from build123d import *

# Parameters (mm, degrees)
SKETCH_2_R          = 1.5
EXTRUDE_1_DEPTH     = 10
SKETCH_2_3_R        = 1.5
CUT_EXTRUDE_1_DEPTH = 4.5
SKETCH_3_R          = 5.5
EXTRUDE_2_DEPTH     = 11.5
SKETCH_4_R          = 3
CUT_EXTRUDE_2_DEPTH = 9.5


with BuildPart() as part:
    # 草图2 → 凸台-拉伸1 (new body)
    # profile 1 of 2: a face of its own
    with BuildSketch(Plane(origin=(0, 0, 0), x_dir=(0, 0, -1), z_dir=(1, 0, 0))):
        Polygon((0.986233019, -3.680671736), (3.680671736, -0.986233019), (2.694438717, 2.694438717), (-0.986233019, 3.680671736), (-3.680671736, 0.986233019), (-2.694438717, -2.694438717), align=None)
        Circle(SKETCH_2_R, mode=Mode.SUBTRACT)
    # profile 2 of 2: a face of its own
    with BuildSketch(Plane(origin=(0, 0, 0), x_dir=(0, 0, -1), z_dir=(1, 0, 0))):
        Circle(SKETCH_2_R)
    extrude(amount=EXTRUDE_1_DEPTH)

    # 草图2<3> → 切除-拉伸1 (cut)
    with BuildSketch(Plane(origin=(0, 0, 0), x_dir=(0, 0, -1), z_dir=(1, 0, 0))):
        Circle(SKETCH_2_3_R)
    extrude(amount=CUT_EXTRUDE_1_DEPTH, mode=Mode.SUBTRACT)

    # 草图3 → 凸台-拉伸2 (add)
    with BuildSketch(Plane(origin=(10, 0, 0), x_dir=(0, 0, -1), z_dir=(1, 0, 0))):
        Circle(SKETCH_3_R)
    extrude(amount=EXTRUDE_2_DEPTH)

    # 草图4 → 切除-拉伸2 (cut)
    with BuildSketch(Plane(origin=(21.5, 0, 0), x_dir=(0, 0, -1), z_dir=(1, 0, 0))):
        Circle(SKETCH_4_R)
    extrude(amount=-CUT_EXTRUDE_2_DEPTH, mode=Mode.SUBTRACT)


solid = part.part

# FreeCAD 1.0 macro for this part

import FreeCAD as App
import Part
import Sketcher
from FreeCAD import Vector
Q = App.Units.Quantity


def add_polygon(sketch, points):
    """Adds a closed chain of lines whose ends are joined by coincident constraints."""
    first, n = sketch.GeometryCount, len(points)
    for a, b in zip(points, points[1:] + points[:1]):
        sketch.addGeometry(Part.LineSegment(App.Vector(*a, 0), App.Vector(*b, 0)), False)
    for i in range(n):
        sketch.addConstraint(Sketcher.Constraint("Coincident", first + i, 2, first + (i + 1) % n, 1))

doc = App.newDocument("Part")
params = doc.addObject("Spreadsheet::Sheet", "Params")
for row, (alias, value) in enumerate([
    ("pad1_length", "10 mm"),
    ("sketch2_diameter", "3 mm"),
    ("pocket1_length", "4.5 mm"),
    ("sketch3_diameter", "11 mm"),
    ("pad2_length", "11.5 mm"),
    ("sketch4_diameter", "6 mm"),
    ("pocket2_length", "9.5 mm"),
], start=1):
    params.set(f"A{row}", alias)
    params.set(f"B{row}", "=" + value)
    params.setAlias(f"B{row}", alias)

body = doc.addObject("PartDesign::Body", "Body")

# Sketch on YZ plane
sketch1 = body.newObject("Sketcher::SketchObject", "Sketch")
sketch1.AttachmentSupport = (doc.getObject("YZ_Plane"), [""])
sketch1.MapMode = "FlatFace"
add_polygon(sketch1, [(-3.7, -1), (-1, -3.7), (2.7, -2.7), (3.7, 1), (1, 3.7), (-2.7, 2.7)])  # lines 0-5
sketch1.addConstraint([
    Sketcher.Constraint("Symmetric", 0, 2, 3, 2, -1, 1),
    Sketcher.Constraint("Symmetric", 1, 2, 4, 2, -1, 1),
    Sketcher.Constraint("Symmetric", 2, 2, 5, 2, -1, 1),
    Sketcher.Constraint("Equal", 0, 1),
    Sketcher.Constraint("Equal", 1, 2),
    Sketcher.Constraint("Angle", 0, Q("-45 deg")),
    Sketcher.Constraint("Angle", 1, Q("15 deg")),
    Sketcher.Constraint("Angle", 2, Q("75 deg")),
    Sketcher.Constraint("Distance", 0, Q("3.810512 mm")),
])
pad1 = body.newObject("PartDesign::Pad", "Pad")
pad1.Profile = sketch1
pad1.setExpression("Length", "Params.pad1_length")

# Sketch on YZ plane
sketch2 = body.newObject("Sketcher::SketchObject", "Sketch001")
sketch2.AttachmentSupport = (doc.getObject("YZ_Plane"), [""])
sketch2.MapMode = "FlatFace"
sketch2.addGeometry(Part.Circle(Vector(0, 0, 0), Vector(0, 0, 1), 1.5), False)
sketch2.addConstraint([
    Sketcher.Constraint("Coincident", 0, 3, -1, 1),
    Sketcher.Constraint("Diameter", 0, Q("3 mm")),
])
sketch2.setExpression("Constraints[1]", "Params.sketch2_diameter")
pocket1 = body.newObject("PartDesign::Pocket", "Pocket")
pocket1.Profile = sketch2
pocket1.setExpression("Length", "Params.pocket1_length")
pocket1.Reversed = True

# Sketch on YZ plane
sketch3 = body.newObject("Sketcher::SketchObject", "Sketch002")
sketch3.AttachmentSupport = (doc.getObject("YZ_Plane"), [""])
sketch3.MapMode = "FlatFace"
sketch3.AttachmentOffset = App.Placement(Vector(0, 0, 10), App.Rotation())
sketch3.addGeometry(Part.Circle(Vector(0, 0, 0), Vector(0, 0, 1), 6), False)
sketch3.addConstraint([
    Sketcher.Constraint("Coincident", 0, 3, -1, 1),
    Sketcher.Constraint("Diameter", 0, Q("11 mm")),
])
sketch3.setExpression("Constraints[1]", "Params.sketch3_diameter")
pad2 = body.newObject("PartDesign::Pad", "Pad001")
pad2.Profile = sketch3
pad2.setExpression("Length", "Params.pad2_length")

# Sketch on YZ plane
sketch4 = body.newObject("Sketcher::SketchObject", "Sketch003")
sketch4.AttachmentSupport = (doc.getObject("YZ_Plane"), [""])
sketch4.MapMode = "FlatFace"
sketch4.AttachmentOffset = App.Placement(Vector(0, 0, 21.5), App.Rotation())
sketch4.addGeometry(Part.Circle(Vector(0, 0, 0), Vector(0, 0, 1), 3), False)
sketch4.addConstraint([
    Sketcher.Constraint("Coincident", 0, 3, -1, 1),
    Sketcher.Constraint("Diameter", 0, Q("6 mm")),
])
sketch4.setExpression("Constraints[1]", "Params.sketch4_diameter")
pocket2 = body.newObject("PartDesign::Pocket", "Pocket001")
pocket2.Profile = sketch4
pocket2.setExpression("Length", "Params.pocket2_length")

doc.recompute()
